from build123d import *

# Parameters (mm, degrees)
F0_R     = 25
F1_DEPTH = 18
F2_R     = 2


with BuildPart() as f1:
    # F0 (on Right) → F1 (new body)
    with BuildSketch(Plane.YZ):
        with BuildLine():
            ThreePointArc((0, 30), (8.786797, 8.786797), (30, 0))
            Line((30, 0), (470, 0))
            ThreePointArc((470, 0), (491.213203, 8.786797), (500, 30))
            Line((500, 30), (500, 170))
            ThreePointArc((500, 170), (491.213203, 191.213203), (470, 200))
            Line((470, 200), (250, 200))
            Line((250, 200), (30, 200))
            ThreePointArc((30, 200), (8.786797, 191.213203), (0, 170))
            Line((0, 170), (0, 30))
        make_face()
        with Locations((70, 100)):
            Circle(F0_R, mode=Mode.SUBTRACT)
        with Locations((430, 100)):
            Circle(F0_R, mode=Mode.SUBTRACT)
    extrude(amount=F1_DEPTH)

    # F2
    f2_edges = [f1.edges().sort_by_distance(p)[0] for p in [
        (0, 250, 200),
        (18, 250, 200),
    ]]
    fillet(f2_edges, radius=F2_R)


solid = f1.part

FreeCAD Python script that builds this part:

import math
import FreeCAD as App
import Part
import Sketcher
from FreeCAD import Vector
Q = App.Units.Quantity


def edges_at(feature, points):
    """Names of the edges that pass closest to the given points."""
    edges = feature.Shape.Edges
    near = lambda p: min(range(len(edges)), key=lambda i: edges[i].distToShape(Part.Vertex(*p))[0])
    return sorted({f"Edge{near(p) + 1}" for p in points})

doc = App.newDocument("Part")
body = doc.addObject("PartDesign::Body", "Body")

sketch1 = doc.addObject("Sketcher::SketchObject", "Sketch")
body.addObject(sketch1)
sketch1.AttachmentSupport = (doc.YZ_Plane, [""])
sketch1.MapMode = "FlatFace"
sketch1.addGeometry(Part.ArcOfCircle(Part.Circle(Vector(30, 30, 0), Vector(0, 0, 1), 30), math.radians(-180), math.radians(-90)), False)
sketch1.addGeometry(Part.LineSegment(Vector(30, 0, 0), Vector(470, 0, 0)), False)
sketch1.addGeometry(Part.ArcOfCircle(Part.Circle(Vector(470, 30, 0), Vector(0, 0, 1), 30), math.radians(-90), math.radians(0)), False)
sketch1.addGeometry(Part.LineSegment(Vector(500, 30, 0), Vector(500, 170, 0)), False)
sketch1.addGeometry(Part.ArcOfCircle(Part.Circle(Vector(470, 170, 0), Vector(0, 0, 1), 30), math.radians(0), math.radians(90)), False)
sketch1.addGeometry(Part.LineSegment(Vector(470, 200, 0), Vector(30, 200, 0)), False)
sketch1.addGeometry(Part.ArcOfCircle(Part.Circle(Vector(30, 170, 0), Vector(0, 0, 1), 30), math.radians(90), math.radians(180)), False)
sketch1.addGeometry(Part.LineSegment(Vector(0, 170, 0), Vector(0, 30, 0)), False)
sketch1.addGeometry(Part.Circle(Vector(70, 100, 0), Vector(0, 0, 1), 25), False)
sketch1.addGeometry(Part.Circle(Vector(430, 100, 0), Vector(0, 0, 1), 25), False)
sketch1.addConstraint(Sketcher.Constraint("Tangent", 0, 2, 1, 1))
sketch1.addConstraint(Sketcher.Constraint("Tangent", 1, 2, 2, 1))
sketch1.addConstraint(Sketcher.Constraint("Tangent", 2, 2, 3, 1))
sketch1.addConstraint(Sketcher.Constraint("Tangent", 3, 2, 4, 1))
sketch1.addConstraint(Sketcher.Constraint("Tangent", 4, 2, 5, 1))
sketch1.addConstraint(Sketcher.Constraint("Tangent", 5, 2, 6, 1))
sketch1.addConstraint(Sketcher.Constraint("Tangent", 6, 2, 7, 1))
sketch1.addConstraint(Sketcher.Constraint("Tangent", 7, 2, 0, 1))
sketch1.addConstraint(Sketcher.Constraint("Horizontal", 1))
sketch1.addConstraint(Sketcher.Constraint("Vertical", 3))
sketch1.addConstraint(Sketcher.Constraint("Horizontal", 5))
sketch1.addConstraint(Sketcher.Constraint("Vertical", 7))
sketch1.addConstraint(Sketcher.Constraint("Equal", 0, 2))
sketch1.addConstraint(Sketcher.Constraint("Equal", 2, 4))
sketch1.addConstraint(Sketcher.Constraint("Equal", 4, 6))
sketch1.addConstraint(Sketcher.Constraint("Equal", 8, 9))
sketch1.addConstraint(Sketcher.Constraint("PointOnObject", 0, 2, -1))
sketch1.addConstraint(Sketcher.Constraint("PointOnObject", 6, 2, -2))
sketch1.addConstraint(Sketcher.Constraint("Horizontal", 8, 3, 9, 3))
sketch1.addConstraint(Sketcher.Constraint("Diameter", 8, Q("50 mm")))
sketch1.addConstraint(Sketcher.Constraint("Radius", 0, Q("30.000001 mm")))
sketch1.addConstraint(Sketcher.Constraint("DistanceX", 1, 1, 1, 2, Q("440 mm")))
sketch1.addConstraint(Sketcher.Constraint("DistanceY", 3, 1, 3, 2, Q("140 mm")))
sketch1.addConstraint(Sketcher.Constraint("DistanceX", -1, 1, 8, 3, Q("70 mm")))
sketch1.addConstraint(Sketcher.Constraint("DistanceY", -1, 1, 8, 3, Q("100 mm")))
sketch1.addConstraint(Sketcher.Constraint("DistanceX", -1, 1, 9, 3, Q("430 mm")))
pad1 = doc.addObject("PartDesign::Pad", "Pad")
body.addObject(pad1)
pad1.Profile = sketch1
pad1.Length = 18
doc.recompute()

fillet = doc.addObject("PartDesign::Fillet", "Fillet")
body.addObject(fillet)
fillet.Base = (pad1, edges_at(pad1, [(0, 250, 200), (18, 250, 200)]))
fillet.Radius = 2

doc.recompute()
